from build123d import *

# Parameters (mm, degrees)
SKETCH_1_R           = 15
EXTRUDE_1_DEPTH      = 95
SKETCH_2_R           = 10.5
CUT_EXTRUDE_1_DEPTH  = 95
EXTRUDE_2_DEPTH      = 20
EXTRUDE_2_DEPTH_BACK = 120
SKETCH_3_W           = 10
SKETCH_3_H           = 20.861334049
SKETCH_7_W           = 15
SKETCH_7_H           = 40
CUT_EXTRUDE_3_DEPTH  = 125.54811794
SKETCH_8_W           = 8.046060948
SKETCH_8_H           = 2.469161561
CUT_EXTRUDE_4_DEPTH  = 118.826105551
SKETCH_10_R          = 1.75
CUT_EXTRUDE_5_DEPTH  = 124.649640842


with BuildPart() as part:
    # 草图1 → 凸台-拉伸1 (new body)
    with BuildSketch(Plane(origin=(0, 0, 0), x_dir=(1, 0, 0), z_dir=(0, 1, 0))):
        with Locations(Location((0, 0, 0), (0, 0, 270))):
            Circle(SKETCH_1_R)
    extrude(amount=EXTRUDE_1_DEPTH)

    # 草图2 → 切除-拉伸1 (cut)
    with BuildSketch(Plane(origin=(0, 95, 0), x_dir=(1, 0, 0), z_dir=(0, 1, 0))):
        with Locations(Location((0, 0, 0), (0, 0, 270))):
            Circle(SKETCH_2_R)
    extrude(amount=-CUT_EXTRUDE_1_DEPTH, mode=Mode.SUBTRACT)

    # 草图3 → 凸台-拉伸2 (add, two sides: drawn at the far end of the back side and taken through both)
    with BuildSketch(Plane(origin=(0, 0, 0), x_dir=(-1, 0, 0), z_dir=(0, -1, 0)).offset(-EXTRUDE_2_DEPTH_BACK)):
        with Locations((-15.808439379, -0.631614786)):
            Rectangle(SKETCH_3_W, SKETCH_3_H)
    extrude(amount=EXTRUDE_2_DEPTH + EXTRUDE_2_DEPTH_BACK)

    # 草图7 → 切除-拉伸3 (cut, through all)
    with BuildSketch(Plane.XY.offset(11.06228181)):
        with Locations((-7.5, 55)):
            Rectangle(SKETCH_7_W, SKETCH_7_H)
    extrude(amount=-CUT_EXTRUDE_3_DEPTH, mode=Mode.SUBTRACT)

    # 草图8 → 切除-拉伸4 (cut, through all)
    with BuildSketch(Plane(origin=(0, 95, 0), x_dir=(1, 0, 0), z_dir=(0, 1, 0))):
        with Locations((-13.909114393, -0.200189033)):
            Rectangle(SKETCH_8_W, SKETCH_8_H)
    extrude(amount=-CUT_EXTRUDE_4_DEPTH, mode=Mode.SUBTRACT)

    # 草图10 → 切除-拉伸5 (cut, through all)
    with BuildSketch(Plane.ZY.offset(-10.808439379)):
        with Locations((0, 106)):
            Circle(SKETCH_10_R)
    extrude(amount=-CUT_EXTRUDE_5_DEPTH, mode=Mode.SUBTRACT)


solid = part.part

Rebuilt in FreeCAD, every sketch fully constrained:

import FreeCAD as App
import Part
import Sketcher
from FreeCAD import Vector
Q = App.Units.Quantity

doc = App.newDocument("Part")
body = doc.addObject("PartDesign::Body", "Body")

# Sketch on XZ plane
sketch1 = body.newObject("Sketcher::SketchObject", "Sketch")
sketch1.AttachmentSupport = (doc.getObject("XZ_Plane"), [""])
sketch1.MapMode = "FlatFace"
sketch1.addGeometry(Part.Circle(Vector(0, 0, 0), Vector(0, 0, 1), 15), False)
sketch1.addConstraint([
    Sketcher.Constraint("Coincident", 0, 3, -1, 1),
    Sketcher.Constraint("Diameter", 0, Q("30 mm")),
])
pad1 = body.newObject("PartDesign::Pad", "Pad")
pad1.Profile = sketch1
pad1.Length = 95
pad1.Reversed = True

# Sketch on XZ plane
sketch2 = body.newObject("Sketcher::SketchObject", "Sketch001")
sketch2.AttachmentSupport = (doc.getObject("XZ_Plane"), [""])
sketch2.MapMode = "FlatFace"
sketch2.AttachmentOffset = App.Placement(Vector(0, 0, -95), App.Rotation())
sketch2.addGeometry(Part.Circle(Vector(0, 0, 0), Vector(0, 0, 1), 10), False)
sketch2.addConstraint([
    Sketcher.Constraint("Coincident", 0, 3, -1, 1),
    Sketcher.Constraint("Diameter", 0, Q("21 mm")),
])
pocket1 = body.newObject("PartDesign::Pocket", "Pocket")
pocket1.Profile = sketch2
pocket1.Length = 95
pocket1.Reversed = True

# Sketch on XZ plane
sketch3 = body.newObject("Sketcher::SketchObject", "Sketch002")
sketch3.AttachmentSupport = (doc.getObject("XZ_Plane"), [""])
sketch3.MapMode = "FlatFace"
sketch3.addGeometry([
    Part.LineSegment(Vector(21, -10, 0), Vector(21, 11, 0)),
    Part.LineSegment(Vector(21, 11, 0), Vector(11, 11, 0)),
    Part.LineSegment(Vector(11, 11, 0), Vector(11, -10, 0)),
    Part.LineSegment(Vector(11, -10, 0), Vector(21, -10, 0)),
], False)
sketch3.addConstraint([
    Sketcher.Constraint("Coincident", 0, 2, 1, 1),
    Sketcher.Constraint("Coincident", 1, 2, 2, 1),
    Sketcher.Constraint("Coincident", 2, 2, 3, 1),
    Sketcher.Constraint("Coincident", 3, 2, 0, 1),
    Sketcher.Constraint("Vertical", 0),
    Sketcher.Constraint("Horizontal", 1),
    Sketcher.Constraint("Vertical", 2),
    Sketcher.Constraint("Horizontal", 3),
    Sketcher.Constraint("DistanceX", 1, 2, 1, 1, Q("10 mm")),
    Sketcher.Constraint("DistanceY", 0, 1, 0, 2, Q("20.861334 mm")),
    Sketcher.Constraint("DistanceX", -1, 1, 0, 2, Q("20.808439 mm")),
    Sketcher.Constraint("DistanceY", -1, 1, 0, 2, Q("11.062282 mm")),
])
pad2 = body.newObject("PartDesign::Pad", "Pad001")
pad2.Profile = sketch3
pad2.Type = "TwoLengths"
pad2.Length = 20
pad2.Length2 = 120

# Sketch on XY plane
sketch4 = body.newObject("Sketcher::SketchObject", "Sketch003")
sketch4.AttachmentSupport = (doc.getObject("XY_Plane"), [""])
sketch4.MapMode = "FlatFace"
sketch4.AttachmentOffset = App.Placement(Vector(0, 0, 11.062282), App.Rotation())
sketch4.addGeometry([
    Part.LineSegment(Vector(-15, 75, 0), Vector(-15, 35, 0)),
    Part.LineSegment(Vector(-15, 35, 0), Vector(0, 35, 0)),
    Part.LineSegment(Vector(0, 35, 0), Vector(0, 75, 0)),
    Part.LineSegment(Vector(0, 75, 0), Vector(-15, 75, 0)),
], False)
sketch4.addConstraint([
    Sketcher.Constraint("Coincident", 0, 2, 1, 1),
    Sketcher.Constraint("Coincident", 1, 2, 2, 1),
    Sketcher.Constraint("Coincident", 2, 2, 3, 1),
    Sketcher.Constraint("Coincident", 3, 2, 0, 1),
    Sketcher.Constraint("Vertical", 0),
    Sketcher.Constraint("Horizontal", 1),
    Sketcher.Constraint("Vertical", 2),
    Sketcher.Constraint("Horizontal", 3),
    Sketcher.Constraint("PointOnObject", 1, 2, -2),
    Sketcher.Constraint("DistanceX", 1, 1, 1, 2, Q("15 mm")),
    Sketcher.Constraint("DistanceY", 0, 2, 0, 1, Q("40 mm")),
    Sketcher.Constraint("DistanceY", -1, 1, 0, 2, Q("35 mm")),
])
pocket2 = body.newObject("PartDesign::Pocket", "Pocket001")
pocket2.Profile = sketch4
pocket2.Type = "ThroughAll"

# Sketch on XZ plane
sketch5 = body.newObject("Sketcher::SketchObject", "Sketch004")
sketch5.AttachmentSupport = (doc.getObject("XZ_Plane"), [""])
sketch5.MapMode = "FlatFace"
sketch5.AttachmentOffset = App.Placement(Vector(0, 0, -95), App.Rotation())
sketch5.addGeometry([
    Part.LineSegment(Vector(-17.9, -1, 0), Vector(-17.9, 1.4, 0)),
    Part.LineSegment(Vector(-17.9, 1.4, 0), Vector(-9.9, 1.4, 0)),
    Part.LineSegment(Vector(-9.9, 1.4, 0), Vector(-9.9, -1, 0)),
    Part.LineSegment(Vector(-9.9, -1, 0), Vector(-17.9, -1, 0)),
], False)
sketch5.addConstraint([
    Sketcher.Constraint("Coincident", 0, 2, 1, 1),
    Sketcher.Constraint("Coincident", 1, 2, 2, 1),
    Sketcher.Constraint("Coincident", 2, 2, 3, 1),
    Sketcher.Constraint("Coincident", 3, 2, 0, 1),
    Sketcher.Constraint("Vertical", 0),
    Sketcher.Constraint("Horizontal", 1),
    Sketcher.Constraint("Vertical", 2),
    Sketcher.Constraint("Horizontal", 3),
    Sketcher.Constraint("DistanceX", 1, 1, 1, 2, Q("8.046061 mm")),
    Sketcher.Constraint("DistanceY", 0, 1, 0, 2, Q("2.469162 mm")),
    Sketcher.Constraint("DistanceY", -1, 1, 0, 2, Q("1.43477 mm")),
    Sketcher.Constraint("DistanceX", 0, 2, -1, 1, Q("17.932145 mm")),
])
pocket3 = body.newObject("PartDesign::Pocket", "Pocket002")
pocket3.Profile = sketch5
pocket3.Type = "ThroughAll"
pocket3.Reversed = True

# Sketch on YZ plane
sketch6 = body.newObject("Sketcher::SketchObject", "Sketch005")
sketch6.AttachmentSupport = (doc.getObject("YZ_Plane"), [""])
sketch6.MapMode = "FlatFace"
sketch6.AttachmentOffset = App.Placement(Vector(0, 0, 10.808439), App.Rotation())
sketch6.addGeometry(Part.Circle(Vector(106, 0, 0), Vector(0, 0, 1), 1.8), False)
sketch6.addConstraint([
    Sketcher.Constraint("PointOnObject", 0, 3, -1),
    Sketcher.Constraint("Diameter", 0, Q("3.5 mm")),
    Sketcher.Constraint("DistanceX", -1, 1, 0, 3, Q("106 mm")),
])
pocket4 = body.newObject("PartDesign::Pocket", "Pocket003")
pocket4.Profile = sketch6
pocket4.Type = "ThroughAll"
pocket4.Reversed = True

doc.recompute()
